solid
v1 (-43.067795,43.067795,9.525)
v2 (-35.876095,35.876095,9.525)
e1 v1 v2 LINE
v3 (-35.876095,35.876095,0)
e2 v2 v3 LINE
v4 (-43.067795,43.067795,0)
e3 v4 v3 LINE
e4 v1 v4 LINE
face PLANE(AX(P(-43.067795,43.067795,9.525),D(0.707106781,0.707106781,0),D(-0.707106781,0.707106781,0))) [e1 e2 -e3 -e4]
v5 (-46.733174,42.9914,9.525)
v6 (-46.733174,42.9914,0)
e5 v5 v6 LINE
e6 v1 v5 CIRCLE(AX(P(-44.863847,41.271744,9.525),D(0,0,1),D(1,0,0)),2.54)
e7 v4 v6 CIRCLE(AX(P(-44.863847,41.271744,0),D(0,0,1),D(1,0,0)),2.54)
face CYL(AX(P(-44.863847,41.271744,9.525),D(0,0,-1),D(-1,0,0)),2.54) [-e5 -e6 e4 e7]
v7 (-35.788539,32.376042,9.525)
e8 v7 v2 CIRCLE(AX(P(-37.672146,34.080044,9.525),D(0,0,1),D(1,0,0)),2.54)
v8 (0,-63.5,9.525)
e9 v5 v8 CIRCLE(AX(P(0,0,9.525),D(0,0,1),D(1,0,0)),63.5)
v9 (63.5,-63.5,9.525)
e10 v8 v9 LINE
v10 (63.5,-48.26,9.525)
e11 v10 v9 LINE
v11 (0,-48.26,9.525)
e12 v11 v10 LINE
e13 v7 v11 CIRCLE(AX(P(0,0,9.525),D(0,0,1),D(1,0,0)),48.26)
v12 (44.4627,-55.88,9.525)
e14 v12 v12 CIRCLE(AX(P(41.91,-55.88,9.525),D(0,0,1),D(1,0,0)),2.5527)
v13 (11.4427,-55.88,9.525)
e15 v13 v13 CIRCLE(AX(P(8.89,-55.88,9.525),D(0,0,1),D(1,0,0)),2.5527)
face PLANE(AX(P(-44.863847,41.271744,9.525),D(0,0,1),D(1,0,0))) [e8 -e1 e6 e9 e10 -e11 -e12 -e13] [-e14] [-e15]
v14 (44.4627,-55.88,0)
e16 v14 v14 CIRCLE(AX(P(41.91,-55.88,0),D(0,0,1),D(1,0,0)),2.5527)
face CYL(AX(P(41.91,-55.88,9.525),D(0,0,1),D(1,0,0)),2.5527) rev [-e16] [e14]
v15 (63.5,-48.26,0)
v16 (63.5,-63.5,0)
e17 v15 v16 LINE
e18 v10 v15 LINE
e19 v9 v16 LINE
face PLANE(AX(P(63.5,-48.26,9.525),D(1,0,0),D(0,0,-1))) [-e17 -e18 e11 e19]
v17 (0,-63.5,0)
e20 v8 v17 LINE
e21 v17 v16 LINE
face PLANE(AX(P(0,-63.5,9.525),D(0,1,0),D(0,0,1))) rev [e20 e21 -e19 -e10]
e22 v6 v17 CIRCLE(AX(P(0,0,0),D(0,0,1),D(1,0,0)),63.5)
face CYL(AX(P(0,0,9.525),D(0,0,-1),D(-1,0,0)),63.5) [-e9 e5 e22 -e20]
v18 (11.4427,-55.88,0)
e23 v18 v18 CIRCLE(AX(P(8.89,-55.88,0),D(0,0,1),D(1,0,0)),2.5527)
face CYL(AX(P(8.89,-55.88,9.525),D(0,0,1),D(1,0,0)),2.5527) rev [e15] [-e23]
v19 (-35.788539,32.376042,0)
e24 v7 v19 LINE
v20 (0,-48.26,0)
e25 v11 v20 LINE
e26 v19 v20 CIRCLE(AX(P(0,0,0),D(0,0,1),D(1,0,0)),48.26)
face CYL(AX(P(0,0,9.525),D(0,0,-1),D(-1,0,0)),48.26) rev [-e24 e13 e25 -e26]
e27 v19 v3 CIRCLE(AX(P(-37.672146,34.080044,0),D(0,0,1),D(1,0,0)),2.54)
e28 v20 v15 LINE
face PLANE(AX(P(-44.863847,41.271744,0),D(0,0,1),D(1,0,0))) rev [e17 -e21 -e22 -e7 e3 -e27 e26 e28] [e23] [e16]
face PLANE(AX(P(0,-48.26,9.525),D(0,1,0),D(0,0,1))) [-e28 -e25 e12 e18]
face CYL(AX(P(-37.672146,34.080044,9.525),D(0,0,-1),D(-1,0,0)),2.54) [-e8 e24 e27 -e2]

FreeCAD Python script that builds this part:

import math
import FreeCAD as App
import Part
import Sketcher

V = App.Vector
Q = App.Units.Quantity

doc = App.newDocument("Part")
body = doc.addObject("PartDesign::Body", "Body")

# Sketch on XY plane
sketch1 = body.newObject("Sketcher::SketchObject", "Sketch")
sketch1.AttachmentSupport = (doc.getObject("XY_Plane"), [""])
sketch1.MapMode = "FlatFace"
sketch1.addGeometry([
    Part.LineSegment(V(0, -63.5, 0), V(63.5, -63.5, 0)),  # 0
    Part.LineSegment(V(63.5, -63.5, 0), V(63.5, -48.26, 0)),  # 1
    Part.LineSegment(V(63.5, -48.26, 0), V(0, -48.26, 0)),  # 2
    Part.ArcOfCircle(Part.Circle(V(0, 0, 0), V(0, 0, 1), 48.26), math.radians(137.865984), math.radians(270)),  # 3
    Part.ArcOfCircle(Part.Circle(V(-37.672146, 34.080044, 0), V(0, 0, 1), 2.54), math.radians(-42.134016), math.radians(45)),  # 4
    Part.LineSegment(V(-35.876095, 35.876095, 0), V(-43.067795, 43.067795, 0)),  # 5
    Part.ArcOfCircle(Part.Circle(V(-44.863847, 41.271744, 0), V(0, 0, 1), 2.54), math.radians(45), math.radians(137.388015)),  # 6
    Part.ArcOfCircle(Part.Circle(V(0, 0, 0), V(0, 0, 1), 63.5), math.radians(137.388015), math.radians(270)),  # 7
], False)
sketch1.addConstraint([
    Sketcher.Constraint("Coincident", 0, 2, 1, 1),
    Sketcher.Constraint("Coincident", 1, 2, 2, 1),
    Sketcher.Constraint("Tangent", 2, 2, 3, 2),
    Sketcher.Constraint("Tangent", 3, 1, 4, 1),
    Sketcher.Constraint("Tangent", 4, 2, 5, 1),
    Sketcher.Constraint("Tangent", 5, 2, 6, 1),
    Sketcher.Constraint("Tangent", 6, 2, 7, 1),
    Sketcher.Constraint("Tangent", 7, 2, 0, 1),
    Sketcher.Constraint("Horizontal", 0),
    Sketcher.Constraint("Vertical", 1),
    Sketcher.Constraint("Horizontal", 2),
    Sketcher.Constraint("Coincident", 3, 3, -1, 1),
    Sketcher.Constraint("Coincident", 7, 3, -1, 1),
    Sketcher.Constraint("Equal", 4, 6),
    Sketcher.Constraint("Radius", 3, Q("1.9 in")),
    Sketcher.Constraint("Radius", 4, Q("0.1 in")),
    Sketcher.Constraint("Radius", 7, Q("2.5 in")),
    Sketcher.Constraint("DistanceX", 0, 1, 0, 2, Q("2.5 in")),
    Sketcher.Constraint("Angle", 5, Q("135 deg")),
    Sketcher.Constraint("Distance", 5, 10.1706),
])
pad1 = body.newObject("PartDesign::Pad", "Pad")
pad1.Profile = sketch1
pad1.Length = Q("0.375 in")

# Sketch on XY plane
sketch2 = body.newObject("Sketcher::SketchObject", "Sketch001")
sketch2.AttachmentSupport = (doc.getObject("XY_Plane"), [""])
sketch2.MapMode = "FlatFace"
sketch2.AttachmentOffset = App.Placement(V(0, 0, 0.375 * 25.4), App.Rotation())
sketch2.addGeometry([
    Part.Circle(V(8.89, -55.88, 0), V(0, 0, 1), 2.5527),
    Part.Circle(V(41.91, -55.88, 0), V(0, 0, 1), 2.5527),
], False)
sketch2.addConstraint([
    Sketcher.Constraint("Equal", 0, 1),
    Sketcher.Constraint("Horizontal", 0, 3, 1, 3),
    Sketcher.Constraint("Diameter", 0, Q("0.201 in")),
    Sketcher.Constraint("DistanceY", 0, 3, -1, 1, Q("2.2 in")),
    Sketcher.Constraint("DistanceX", 0, 3, 1, 3, Q("1.3 in")),
    Sketcher.Constraint("DistanceX", -1, 1, 0, 3, Q("0.35 in")),
])
doc.recompute()
hole = body.newObject("PartDesign::Hole", "Hole")
hole.Profile = sketch2
hole.ThreadType = "None"
hole.Diameter = Q("0.201 in")
hole.DepthType = "ThroughAll"

doc.recompute()
